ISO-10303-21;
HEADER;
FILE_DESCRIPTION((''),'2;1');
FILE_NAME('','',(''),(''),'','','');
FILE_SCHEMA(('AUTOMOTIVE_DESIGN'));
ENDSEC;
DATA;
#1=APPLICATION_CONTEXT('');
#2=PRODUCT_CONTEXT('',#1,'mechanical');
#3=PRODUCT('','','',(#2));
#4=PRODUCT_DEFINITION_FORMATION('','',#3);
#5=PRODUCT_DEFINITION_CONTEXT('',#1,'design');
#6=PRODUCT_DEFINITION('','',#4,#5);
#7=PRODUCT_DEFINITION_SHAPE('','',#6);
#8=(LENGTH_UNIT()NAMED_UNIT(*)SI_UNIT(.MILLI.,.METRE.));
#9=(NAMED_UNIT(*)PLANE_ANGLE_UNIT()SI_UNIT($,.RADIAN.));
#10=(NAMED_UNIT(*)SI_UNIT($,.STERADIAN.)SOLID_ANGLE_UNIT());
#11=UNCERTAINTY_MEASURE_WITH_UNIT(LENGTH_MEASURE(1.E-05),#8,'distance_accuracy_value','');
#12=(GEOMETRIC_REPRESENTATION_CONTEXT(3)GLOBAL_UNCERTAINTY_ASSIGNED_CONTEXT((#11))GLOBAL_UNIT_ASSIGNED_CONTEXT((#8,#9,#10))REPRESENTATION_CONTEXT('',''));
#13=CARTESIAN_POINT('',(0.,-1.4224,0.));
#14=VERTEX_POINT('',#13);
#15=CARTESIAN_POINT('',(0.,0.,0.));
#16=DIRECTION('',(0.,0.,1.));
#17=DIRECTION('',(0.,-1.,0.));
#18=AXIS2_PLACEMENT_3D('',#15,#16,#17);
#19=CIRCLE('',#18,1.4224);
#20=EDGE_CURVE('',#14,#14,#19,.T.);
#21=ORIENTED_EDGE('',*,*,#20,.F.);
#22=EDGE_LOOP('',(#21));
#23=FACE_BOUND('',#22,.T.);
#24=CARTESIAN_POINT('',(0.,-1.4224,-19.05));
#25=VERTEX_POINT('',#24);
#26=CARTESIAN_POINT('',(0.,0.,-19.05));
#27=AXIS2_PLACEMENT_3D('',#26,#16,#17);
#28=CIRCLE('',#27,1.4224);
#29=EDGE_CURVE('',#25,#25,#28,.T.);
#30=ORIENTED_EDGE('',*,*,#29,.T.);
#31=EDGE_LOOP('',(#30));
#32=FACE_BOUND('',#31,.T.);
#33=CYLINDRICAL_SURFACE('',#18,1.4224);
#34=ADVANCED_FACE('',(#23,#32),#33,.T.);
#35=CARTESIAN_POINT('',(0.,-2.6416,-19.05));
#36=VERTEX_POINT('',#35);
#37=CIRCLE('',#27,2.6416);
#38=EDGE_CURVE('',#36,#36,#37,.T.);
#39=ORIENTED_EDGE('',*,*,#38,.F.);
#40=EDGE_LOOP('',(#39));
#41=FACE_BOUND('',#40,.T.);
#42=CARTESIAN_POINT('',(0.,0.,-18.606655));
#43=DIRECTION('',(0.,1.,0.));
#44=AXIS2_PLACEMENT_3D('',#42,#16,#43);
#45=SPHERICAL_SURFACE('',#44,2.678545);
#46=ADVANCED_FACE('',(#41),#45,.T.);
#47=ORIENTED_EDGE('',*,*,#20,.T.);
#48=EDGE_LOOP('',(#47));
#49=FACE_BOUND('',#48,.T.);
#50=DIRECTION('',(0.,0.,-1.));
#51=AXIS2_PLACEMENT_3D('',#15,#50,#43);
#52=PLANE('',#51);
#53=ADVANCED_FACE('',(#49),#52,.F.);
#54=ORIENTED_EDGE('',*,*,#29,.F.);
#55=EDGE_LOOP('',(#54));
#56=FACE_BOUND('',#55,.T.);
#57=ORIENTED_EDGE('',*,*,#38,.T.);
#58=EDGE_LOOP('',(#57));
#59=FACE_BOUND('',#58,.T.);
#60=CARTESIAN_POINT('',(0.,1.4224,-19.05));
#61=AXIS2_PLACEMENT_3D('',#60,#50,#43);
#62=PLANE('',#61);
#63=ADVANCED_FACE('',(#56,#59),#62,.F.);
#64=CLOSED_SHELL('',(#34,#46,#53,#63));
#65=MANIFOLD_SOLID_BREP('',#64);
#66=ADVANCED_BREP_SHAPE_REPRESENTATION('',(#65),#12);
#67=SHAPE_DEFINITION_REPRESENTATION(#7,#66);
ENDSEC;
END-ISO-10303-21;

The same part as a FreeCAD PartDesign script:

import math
import FreeCAD as App
import Part
import Sketcher

V = App.Vector
Q = App.Units.Quantity

doc = App.newDocument("Part")
body = doc.addObject("PartDesign::Body", "Body")

sketch1 = body.newObject("Sketcher::SketchObject", "Sketch")
sketch1.AttachmentSupport = (doc.getObject("YZ_Plane"), [""])
sketch1.MapMode = "FlatFace"
sketch1.addGeometry([
    Part.LineSegment(V(1.4, 0, 0), V(0, 0, 0)),
    Part.LineSegment(V(0, 0, 0), V(0, -21.3, 0)),
    Part.ArcOfCircle(Part.Circle(V(0, -18.6, 0), V(0, 0, 1), 2.7), math.radians(-90), math.radians(-10)),
    Part.LineSegment(V(2.6, -19.1, 0), V(1.4, -19.1, 0)),
    Part.LineSegment(V(1.4, -19.1, 0), V(1.4, 0, 0)),
], False)
sketch1.addConstraint([
    Sketcher.Constraint("Coincident", 0, 2, 1, 1),
    Sketcher.Constraint("Coincident", 1, 2, 2, 1),
    Sketcher.Constraint("Coincident", 2, 2, 3, 1),
    Sketcher.Constraint("Coincident", 3, 2, 4, 1),
    Sketcher.Constraint("Coincident", 4, 2, 0, 1),
    Sketcher.Constraint("Horizontal", 0),
    Sketcher.Constraint("Vertical", 1),
    Sketcher.Constraint("Horizontal", 3),
    Sketcher.Constraint("Vertical", 4),
    Sketcher.Constraint("Coincident", 0, 2, -1, 1),
    Sketcher.Constraint("PointOnObject", 2, 3, -2),
    Sketcher.Constraint("DistanceY", 4, 1, 4, 2, Q("0.75 in")),
    Sketcher.Constraint("DistanceX", 0, 2, 0, 1, Q("0.056 in")),
    Sketcher.Constraint("DistanceX", 3, 2, 3, 1, Q("0.048 in")),
    Sketcher.Constraint("DistanceY", 1, 2, 1, 1, Q("0.838 in")),
])
revolution = body.newObject("PartDesign::Revolution", "Revolution")
revolution.Profile = sketch1
revolution.ReferenceAxis = (sketch1, ["V_Axis"])
revolution.Angle = 360

doc.recompute()
